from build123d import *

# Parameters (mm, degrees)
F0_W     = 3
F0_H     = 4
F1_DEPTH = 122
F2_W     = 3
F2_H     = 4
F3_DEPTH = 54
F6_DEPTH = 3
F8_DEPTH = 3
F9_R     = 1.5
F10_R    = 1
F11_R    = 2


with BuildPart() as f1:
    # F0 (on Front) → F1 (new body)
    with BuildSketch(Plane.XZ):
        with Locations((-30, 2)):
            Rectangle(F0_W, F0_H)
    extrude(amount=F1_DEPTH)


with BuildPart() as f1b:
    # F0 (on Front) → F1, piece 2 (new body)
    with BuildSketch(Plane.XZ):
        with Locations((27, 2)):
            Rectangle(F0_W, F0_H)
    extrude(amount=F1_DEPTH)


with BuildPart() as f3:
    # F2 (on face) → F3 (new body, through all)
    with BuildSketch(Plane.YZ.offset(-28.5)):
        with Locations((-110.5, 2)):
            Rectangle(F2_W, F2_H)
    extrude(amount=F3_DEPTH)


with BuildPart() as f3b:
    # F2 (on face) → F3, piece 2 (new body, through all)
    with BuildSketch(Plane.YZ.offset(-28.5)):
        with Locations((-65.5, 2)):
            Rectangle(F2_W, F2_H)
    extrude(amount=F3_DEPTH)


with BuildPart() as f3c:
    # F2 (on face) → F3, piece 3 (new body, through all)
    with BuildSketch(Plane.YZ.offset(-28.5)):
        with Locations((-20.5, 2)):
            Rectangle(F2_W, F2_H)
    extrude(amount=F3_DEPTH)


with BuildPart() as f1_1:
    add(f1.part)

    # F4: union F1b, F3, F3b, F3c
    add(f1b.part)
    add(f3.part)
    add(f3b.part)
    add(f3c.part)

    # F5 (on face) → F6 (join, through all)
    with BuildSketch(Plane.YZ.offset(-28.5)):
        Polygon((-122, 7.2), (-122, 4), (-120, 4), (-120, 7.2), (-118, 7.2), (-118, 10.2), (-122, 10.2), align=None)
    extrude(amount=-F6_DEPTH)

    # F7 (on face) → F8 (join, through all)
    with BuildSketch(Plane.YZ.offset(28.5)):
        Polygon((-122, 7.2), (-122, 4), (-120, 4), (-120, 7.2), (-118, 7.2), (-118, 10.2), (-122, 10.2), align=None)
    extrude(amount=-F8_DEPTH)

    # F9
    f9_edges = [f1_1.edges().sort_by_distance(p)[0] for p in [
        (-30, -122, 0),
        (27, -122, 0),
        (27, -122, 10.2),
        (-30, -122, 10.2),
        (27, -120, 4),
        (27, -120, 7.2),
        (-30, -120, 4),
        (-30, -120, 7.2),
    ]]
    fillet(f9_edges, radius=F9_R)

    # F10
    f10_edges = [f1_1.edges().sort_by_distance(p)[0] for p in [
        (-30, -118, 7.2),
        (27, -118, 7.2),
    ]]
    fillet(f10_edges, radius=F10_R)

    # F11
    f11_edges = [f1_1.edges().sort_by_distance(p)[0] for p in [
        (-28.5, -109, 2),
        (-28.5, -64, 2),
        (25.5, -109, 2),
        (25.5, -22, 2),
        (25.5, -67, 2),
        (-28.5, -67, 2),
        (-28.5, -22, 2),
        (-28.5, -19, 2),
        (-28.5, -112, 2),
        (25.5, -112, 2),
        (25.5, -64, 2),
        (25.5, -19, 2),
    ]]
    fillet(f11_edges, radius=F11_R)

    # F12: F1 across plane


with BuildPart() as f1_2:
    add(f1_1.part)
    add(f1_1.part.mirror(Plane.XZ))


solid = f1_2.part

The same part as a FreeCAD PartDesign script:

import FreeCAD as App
import Part
import Sketcher

V = App.Vector


def edges_at(feature, points):
    """Names of the edges that pass closest to the given points."""
    edges = feature.Shape.Edges
    near = lambda p: min(range(len(edges)), key=lambda i: edges[i].distToShape(Part.Vertex(*p))[0])
    return sorted({f"Edge{near(p) + 1}" for p in points})

doc = App.newDocument("Part")
params = doc.addObject("Spreadsheet::Sheet", "Params")
for row, (alias, value) in enumerate([
    ("sketch1_width", "3 mm"),
    ("sketch1_height", "4 mm"),
    ("pad1_length", "122 mm"),
    ("sketch2_width", "3 mm"),
    ("sketch2_height", "4 mm"),
    ("pad2_length", "122 mm"),
    ("sketch3_width", "3 mm"),
    ("sketch3_height", "4 mm"),
    ("pad3_length", "54 mm"),
    ("sketch4_width", "3 mm"),
    ("sketch4_height", "4 mm"),
    ("pad4_length", "54 mm"),
    ("sketch5_width", "3 mm"),
    ("sketch5_height", "4 mm"),
    ("pad5_length", "54 mm"),
    ("sketch6_width", "2 mm"),
    ("sketch6_height", "3 mm"),
    ("sketch6_height2", "3.2 mm"),
    ("pad6_length", "3 mm"),
    ("sketch7_width", "2 mm"),
    ("sketch7_height", "3 mm"),
    ("sketch7_height2", "3.2 mm"),
    ("pad7_length", "3 mm"),
    ("fillet_radius", "1.5 mm"),
    ("fillet2_radius", "1 mm"),
    ("fillet3_radius", "2 mm"),
], start=1):
    params.set(f"A{row}", alias)
    params.set(f"B{row}", "=" + value)
    params.setAlias(f"B{row}", alias)

body = doc.addObject("PartDesign::Body", "Body")

# Sketch on XZ plane
sketch1 = doc.addObject("Sketcher::SketchObject", "Sketch")
body.addObject(sketch1)
sketch1.AttachmentSupport = (doc.XZ_Plane, [""])
sketch1.MapMode = "FlatFace"
sketch1.addGeometry([
    Part.LineSegment(V(-31.5, 4, 0), V(-31.5, 0, 0)),
    Part.LineSegment(V(-31.5, 0, 0), V(-28.5, 0, 0)),
    Part.LineSegment(V(-28.5, 0, 0), V(-28.5, 4, 0)),
    Part.LineSegment(V(-28.5, 4, 0), V(-31.5, 4, 0)),
], False)
sketch1.addConstraint([
    Sketcher.Constraint("Coincident", 0, 2, 1, 1),
    Sketcher.Constraint("Coincident", 1, 2, 2, 1),
    Sketcher.Constraint("Coincident", 2, 2, 3, 1),
    Sketcher.Constraint("Coincident", 3, 2, 0, 1),
    Sketcher.Constraint("Vertical", 0),
    Sketcher.Constraint("Horizontal", 1),
    Sketcher.Constraint("Vertical", 2),
    Sketcher.Constraint("Horizontal", 3),
    Sketcher.Constraint("PointOnObject", 0, 2, -1),
    Sketcher.Constraint("DistanceX", 1, 1, 1, 2, 3.0),
    Sketcher.Constraint("DistanceY", 0, 2, 0, 1, 4.0),
    Sketcher.Constraint("DistanceX", 0, 2, -1, 1, 31.5),
])
sketch1.setExpression("Constraints[9]", "Params.sketch1_width")
sketch1.setExpression("Constraints[10]", "Params.sketch1_height")
pad1 = doc.addObject("PartDesign::Pad", "Pad")
body.addObject(pad1)
pad1.Profile = sketch1
pad1.setExpression("Length", "Params.pad1_length")
body2 = doc.addObject("PartDesign::Body", "Body001")

# Sketch on XZ plane
sketch2 = doc.addObject("Sketcher::SketchObject", "Sketch001")
body2.addObject(sketch2)
sketch2.AttachmentSupport = (doc.getObject("XZ_Plane001"), [""])
sketch2.MapMode = "FlatFace"
sketch2.addGeometry([
    Part.LineSegment(V(25.5, 4, 0), V(25.5, 0, 0)),
    Part.LineSegment(V(25.5, 0, 0), V(28.5, 0, 0)),
    Part.LineSegment(V(28.5, 0, 0), V(28.5, 4, 0)),
    Part.LineSegment(V(28.5, 4, 0), V(25.5, 4, 0)),
], False)
sketch2.addConstraint([
    Sketcher.Constraint("Coincident", 0, 2, 1, 1),
    Sketcher.Constraint("Coincident", 1, 2, 2, 1),
    Sketcher.Constraint("Coincident", 2, 2, 3, 1),
    Sketcher.Constraint("Coincident", 3, 2, 0, 1),
    Sketcher.Constraint("Vertical", 0),
    Sketcher.Constraint("Horizontal", 1),
    Sketcher.Constraint("Vertical", 2),
    Sketcher.Constraint("Horizontal", 3),
    Sketcher.Constraint("PointOnObject", 0, 2, -1),
    Sketcher.Constraint("DistanceX", 1, 1, 1, 2, 3.0),
    Sketcher.Constraint("DistanceY", 0, 2, 0, 1, 4.0),
    Sketcher.Constraint("DistanceX", -1, 1, 0, 2, 25.5),
])
sketch2.setExpression("Constraints[9]", "Params.sketch2_width")
sketch2.setExpression("Constraints[10]", "Params.sketch2_height")
pad2 = doc.addObject("PartDesign::Pad", "Pad001")
body2.addObject(pad2)
pad2.Profile = sketch2
pad2.setExpression("Length", "Params.pad2_length")
body3 = doc.addObject("PartDesign::Body", "Body002")

# Sketch on YZ plane
sketch3 = doc.addObject("Sketcher::SketchObject", "Sketch002")
body3.addObject(sketch3)
sketch3.AttachmentSupport = (doc.getObject("YZ_Plane002"), [""])
sketch3.MapMode = "FlatFace"
sketch3.AttachmentOffset = App.Placement(V(0, 0, -28.5), App.Rotation())
sketch3.addGeometry([
    Part.LineSegment(V(-112, 4, 0), V(-112, 0, 0)),
    Part.LineSegment(V(-112, 0, 0), V(-109, 0, 0)),
    Part.LineSegment(V(-109, 0, 0), V(-109, 4, 0)),
    Part.LineSegment(V(-109, 4, 0), V(-112, 4, 0)),
], False)
sketch3.addConstraint([
    Sketcher.Constraint("Coincident", 0, 2, 1, 1),
    Sketcher.Constraint("Coincident", 1, 2, 2, 1),
    Sketcher.Constraint("Coincident", 2, 2, 3, 1),
    Sketcher.Constraint("Coincident", 3, 2, 0, 1),
    Sketcher.Constraint("Vertical", 0),
    Sketcher.Constraint("Horizontal", 1),
    Sketcher.Constraint("Vertical", 2),
    Sketcher.Constraint("Horizontal", 3),
    Sketcher.Constraint("PointOnObject", 0, 2, -1),
    Sketcher.Constraint("DistanceX", 1, 1, 1, 2, 3.0),
    Sketcher.Constraint("DistanceY", 0, 2, 0, 1, 4.0),
    Sketcher.Constraint("DistanceX", 0, 2, -1, 1, 112.0),
])
sketch3.setExpression("Constraints[9]", "Params.sketch3_width")
sketch3.setExpression("Constraints[10]", "Params.sketch3_height")
pad3 = doc.addObject("PartDesign::Pad", "Pad002")
body3.addObject(pad3)
pad3.Profile = sketch3
pad3.setExpression("Length", "Params.pad3_length")
body4 = doc.addObject("PartDesign::Body", "Body003")

# Sketch on YZ plane
sketch4 = doc.addObject("Sketcher::SketchObject", "Sketch003")
body4.addObject(sketch4)
sketch4.AttachmentSupport = (doc.getObject("YZ_Plane003"), [""])
sketch4.MapMode = "FlatFace"
sketch4.AttachmentOffset = App.Placement(V(0, 0, -28.5), App.Rotation())
sketch4.addGeometry([
    Part.LineSegment(V(-67, 4, 0), V(-67, 0, 0)),
    Part.LineSegment(V(-67, 0, 0), V(-64, 0, 0)),
    Part.LineSegment(V(-64, 0, 0), V(-64, 4, 0)),
    Part.LineSegment(V(-64, 4, 0), V(-67, 4, 0)),
], False)
sketch4.addConstraint([
    Sketcher.Constraint("Coincident", 0, 2, 1, 1),
    Sketcher.Constraint("Coincident", 1, 2, 2, 1),
    Sketcher.Constraint("Coincident", 2, 2, 3, 1),
    Sketcher.Constraint("Coincident", 3, 2, 0, 1),
    Sketcher.Constraint("Vertical", 0),
    Sketcher.Constraint("Horizontal", 1),
    Sketcher.Constraint("Vertical", 2),
    Sketcher.Constraint("Horizontal", 3),
    Sketcher.Constraint("PointOnObject", 0, 2, -1),
    Sketcher.Constraint("DistanceX", 1, 1, 1, 2, 3.0),
    Sketcher.Constraint("DistanceY", 0, 2, 0, 1, 4.0),
    Sketcher.Constraint("DistanceX", 0, 2, -1, 1, 67.0),
])
sketch4.setExpression("Constraints[9]", "Params.sketch4_width")
sketch4.setExpression("Constraints[10]", "Params.sketch4_height")
pad4 = doc.addObject("PartDesign::Pad", "Pad003")
body4.addObject(pad4)
pad4.Profile = sketch4
pad4.setExpression("Length", "Params.pad4_length")
body5 = doc.addObject("PartDesign::Body", "Body004")

# Sketch on YZ plane
sketch5 = doc.addObject("Sketcher::SketchObject", "Sketch004")
body5.addObject(sketch5)
sketch5.AttachmentSupport = (doc.getObject("YZ_Plane004"), [""])
sketch5.MapMode = "FlatFace"
sketch5.AttachmentOffset = App.Placement(V(0, 0, -28.5), App.Rotation())
sketch5.addGeometry([
    Part.LineSegment(V(-22, 4, 0), V(-22, 0, 0)),
    Part.LineSegment(V(-22, 0, 0), V(-19, 0, 0)),
    Part.LineSegment(V(-19, 0, 0), V(-19, 4, 0)),
    Part.LineSegment(V(-19, 4, 0), V(-22, 4, 0)),
], False)
sketch5.addConstraint([
    Sketcher.Constraint("Coincident", 0, 2, 1, 1),
    Sketcher.Constraint("Coincident", 1, 2, 2, 1),
    Sketcher.Constraint("Coincident", 2, 2, 3, 1),
    Sketcher.Constraint("Coincident", 3, 2, 0, 1),
    Sketcher.Constraint("Vertical", 0),
    Sketcher.Constraint("Horizontal", 1),
    Sketcher.Constraint("Vertical", 2),
    Sketcher.Constraint("Horizontal", 3),
    Sketcher.Constraint("PointOnObject", 0, 2, -1),
    Sketcher.Constraint("DistanceX", 1, 1, 1, 2, 3.0),
    Sketcher.Constraint("DistanceY", 0, 2, 0, 1, 4.0),
    Sketcher.Constraint("DistanceX", 0, 2, -1, 1, 22.0),
])
sketch5.setExpression("Constraints[9]", "Params.sketch5_width")
sketch5.setExpression("Constraints[10]", "Params.sketch5_height")
pad5 = doc.addObject("PartDesign::Pad", "Pad004")
body5.addObject(pad5)
pad5.Profile = sketch5
pad5.setExpression("Length", "Params.pad5_length")
body.AllowCompound = True
doc.recompute()

boolean = doc.addObject("PartDesign::Boolean", "Boolean")
body.addObject(boolean)
boolean.Type = "Fuse"
boolean.addObjects([body2])
doc.recompute()

boolean2 = doc.addObject("PartDesign::Boolean", "Boolean001")
body.addObject(boolean2)
boolean2.Type = "Fuse"
boolean2.addObjects([body3])
doc.recompute()

boolean3 = doc.addObject("PartDesign::Boolean", "Boolean002")
body.addObject(boolean3)
boolean3.Type = "Fuse"
boolean3.addObjects([body4])
doc.recompute()

boolean4 = doc.addObject("PartDesign::Boolean", "Boolean003")
body.addObject(boolean4)
boolean4.Type = "Fuse"
boolean4.addObjects([body5])

# Sketch on YZ plane
sketch6 = doc.addObject("Sketcher::SketchObject", "Sketch005")
body.addObject(sketch6)
sketch6.AttachmentSupport = (doc.YZ_Plane, [""])
sketch6.MapMode = "FlatFace"
sketch6.AttachmentOffset = App.Placement(V(0, 0, -28.5), App.Rotation())
sketch6.addGeometry([
    Part.LineSegment(V(-122, 4, 0), V(-120, 4, 0)),  # 0
    Part.LineSegment(V(-120, 4, 0), V(-120, 7.2, 0)),  # 1
    Part.LineSegment(V(-120, 7.2, 0), V(-118, 7.2, 0)),  # 2
    Part.LineSegment(V(-118, 7.2, 0), V(-118, 10.2, 0)),  # 3
    Part.LineSegment(V(-118, 10.2, 0), V(-122, 10.2, 0)),  # 4
    Part.LineSegment(V(-122, 10.2, 0), V(-122, 4, 0)),  # 5
], False)
sketch6.addConstraint([
    Sketcher.Constraint("Coincident", 0, 2, 1, 1),
    Sketcher.Constraint("Coincident", 1, 2, 2, 1),
    Sketcher.Constraint("Coincident", 2, 2, 3, 1),
    Sketcher.Constraint("Coincident", 3, 2, 4, 1),
    Sketcher.Constraint("Coincident", 4, 2, 5, 1),
    Sketcher.Constraint("Coincident", 5, 2, 0, 1),
    Sketcher.Constraint("Horizontal", 0),
    Sketcher.Constraint("Vertical", 1),
    Sketcher.Constraint("Horizontal", 2),
    Sketcher.Constraint("Vertical", 3),
    Sketcher.Constraint("Horizontal", 4),
    Sketcher.Constraint("Vertical", 5),
    Sketcher.Constraint("Equal", 0, 2),
    Sketcher.Constraint("DistanceX", 0, 1, 0, 2, 2.0),
    Sketcher.Constraint("DistanceY", 3, 1, 3, 2, 3.0),
    Sketcher.Constraint("DistanceY", 1, 1, 1, 2, 3.2),
    Sketcher.Constraint("DistanceX", 0, 2, -1, 1, 120.0),
    Sketcher.Constraint("DistanceY", -1, 1, 0, 2, 4.0),
])
sketch6.setExpression("Constraints[13]", "Params.sketch6_width")
sketch6.setExpression("Constraints[14]", "Params.sketch6_height")
sketch6.setExpression("Constraints[15]", "Params.sketch6_height2")
pad6 = doc.addObject("PartDesign::Pad", "Pad005")
body.addObject(pad6)
pad6.Profile = sketch6
pad6.setExpression("Length", "Params.pad6_length")
pad6.Reversed = True

# Sketch on YZ plane
sketch7 = doc.addObject("Sketcher::SketchObject", "Sketch006")
body.addObject(sketch7)
sketch7.AttachmentSupport = (doc.YZ_Plane, [""])
sketch7.MapMode = "FlatFace"
sketch7.AttachmentOffset = App.Placement(V(0, 0, 28.5), App.Rotation())
sketch7.addGeometry([
    Part.LineSegment(V(-122, 4, 0), V(-120, 4, 0)),  # 0
    Part.LineSegment(V(-120, 4, 0), V(-120, 7.2, 0)),  # 1
    Part.LineSegment(V(-120, 7.2, 0), V(-118, 7.2, 0)),  # 2
    Part.LineSegment(V(-118, 7.2, 0), V(-118, 10.2, 0)),  # 3
    Part.LineSegment(V(-118, 10.2, 0), V(-122, 10.2, 0)),  # 4
    Part.LineSegment(V(-122, 10.2, 0), V(-122, 4, 0)),  # 5
], False)
sketch7.addConstraint([
    Sketcher.Constraint("Coincident", 0, 2, 1, 1),
    Sketcher.Constraint("Coincident", 1, 2, 2, 1),
    Sketcher.Constraint("Coincident", 2, 2, 3, 1),
    Sketcher.Constraint("Coincident", 3, 2, 4, 1),
    Sketcher.Constraint("Coincident", 4, 2, 5, 1),
    Sketcher.Constraint("Coincident", 5, 2, 0, 1),
    Sketcher.Constraint("Horizontal", 0),
    Sketcher.Constraint("Vertical", 1),
    Sketcher.Constraint("Horizontal", 2),
    Sketcher.Constraint("Vertical", 3),
    Sketcher.Constraint("Horizontal", 4),
    Sketcher.Constraint("Vertical", 5),
    Sketcher.Constraint("Equal", 0, 2),
    Sketcher.Constraint("DistanceX", 0, 1, 0, 2, 2.0),
    Sketcher.Constraint("DistanceY", 3, 1, 3, 2, 3.0),
    Sketcher.Constraint("DistanceY", 1, 1, 1, 2, 3.2),
    Sketcher.Constraint("DistanceX", 0, 2, -1, 1, 120.0),
    Sketcher.Constraint("DistanceY", -1, 1, 0, 2, 4.0),
])
sketch7.setExpression("Constraints[13]", "Params.sketch7_width")
sketch7.setExpression("Constraints[14]", "Params.sketch7_height")
sketch7.setExpression("Constraints[15]", "Params.sketch7_height2")
pad7 = doc.addObject("PartDesign::Pad", "Pad006")
body.addObject(pad7)
pad7.Profile = sketch7
pad7.setExpression("Length", "Params.pad7_length")
pad7.Reversed = True
doc.recompute()

fillet = doc.addObject("PartDesign::Fillet", "Fillet")
body.addObject(fillet)
fillet.Base = (pad7, edges_at(pad7, [
    (-30, -122, 0),
    (27, -122, 0),
    (27, -122, 10.2),
    (-30, -122, 10.2),
    (27, -120, 4),
    (27, -120, 7.2),
    (-30, -120, 4),
    (-30, -120, 7.2),
]))
fillet.setExpression("Radius", "Params.fillet_radius")
doc.recompute()

fillet2 = doc.addObject("PartDesign::Fillet", "Fillet001")
body.addObject(fillet2)
fillet2.Base = (fillet, edges_at(fillet, [(-30, -118, 7.2), (27, -118, 7.2)]))
fillet2.setExpression("Radius", "Params.fillet2_radius")
doc.recompute()

fillet3 = doc.addObject("PartDesign::Fillet", "Fillet002")
body.addObject(fillet3)
fillet3.Base = (fillet2, edges_at(fillet2, [
    (-28.5, -109, 2),
    (-28.5, -64, 2),
    (25.5, -109, 2),
    (25.5, -22, 2),
    (25.5, -67, 2),
    (-28.5, -67, 2),
    (-28.5, -22, 2),
    (-28.5, -19, 2),
    (-28.5, -112, 2),
    (25.5, -112, 2),
    (25.5, -64, 2),
    (25.5, -19, 2),
]))
fillet3.setExpression("Radius", "Params.fillet3_radius")
body6 = doc.addObject("PartDesign::Body", "Body005")
doc.recompute()

body6.BaseFeature = body
doc.recompute()

mirroring = doc.addObject("Part::Mirroring", "Mirroring")
mirroring.Source = body
mirroring.Base = V(0, 0, 0)
mirroring.Normal = V(0, -1, 0)
body7 = doc.addObject("PartDesign::Body", "Body006")
body7.BaseFeature = mirroring
boolean5 = doc.addObject("PartDesign::Boolean", "Boolean004")
body6.addObject(boolean5)
boolean5.Type = "Fuse"
boolean5.addObjects([body7])
doc.recompute()
mirroring.Visibility = False

doc.recompute()
